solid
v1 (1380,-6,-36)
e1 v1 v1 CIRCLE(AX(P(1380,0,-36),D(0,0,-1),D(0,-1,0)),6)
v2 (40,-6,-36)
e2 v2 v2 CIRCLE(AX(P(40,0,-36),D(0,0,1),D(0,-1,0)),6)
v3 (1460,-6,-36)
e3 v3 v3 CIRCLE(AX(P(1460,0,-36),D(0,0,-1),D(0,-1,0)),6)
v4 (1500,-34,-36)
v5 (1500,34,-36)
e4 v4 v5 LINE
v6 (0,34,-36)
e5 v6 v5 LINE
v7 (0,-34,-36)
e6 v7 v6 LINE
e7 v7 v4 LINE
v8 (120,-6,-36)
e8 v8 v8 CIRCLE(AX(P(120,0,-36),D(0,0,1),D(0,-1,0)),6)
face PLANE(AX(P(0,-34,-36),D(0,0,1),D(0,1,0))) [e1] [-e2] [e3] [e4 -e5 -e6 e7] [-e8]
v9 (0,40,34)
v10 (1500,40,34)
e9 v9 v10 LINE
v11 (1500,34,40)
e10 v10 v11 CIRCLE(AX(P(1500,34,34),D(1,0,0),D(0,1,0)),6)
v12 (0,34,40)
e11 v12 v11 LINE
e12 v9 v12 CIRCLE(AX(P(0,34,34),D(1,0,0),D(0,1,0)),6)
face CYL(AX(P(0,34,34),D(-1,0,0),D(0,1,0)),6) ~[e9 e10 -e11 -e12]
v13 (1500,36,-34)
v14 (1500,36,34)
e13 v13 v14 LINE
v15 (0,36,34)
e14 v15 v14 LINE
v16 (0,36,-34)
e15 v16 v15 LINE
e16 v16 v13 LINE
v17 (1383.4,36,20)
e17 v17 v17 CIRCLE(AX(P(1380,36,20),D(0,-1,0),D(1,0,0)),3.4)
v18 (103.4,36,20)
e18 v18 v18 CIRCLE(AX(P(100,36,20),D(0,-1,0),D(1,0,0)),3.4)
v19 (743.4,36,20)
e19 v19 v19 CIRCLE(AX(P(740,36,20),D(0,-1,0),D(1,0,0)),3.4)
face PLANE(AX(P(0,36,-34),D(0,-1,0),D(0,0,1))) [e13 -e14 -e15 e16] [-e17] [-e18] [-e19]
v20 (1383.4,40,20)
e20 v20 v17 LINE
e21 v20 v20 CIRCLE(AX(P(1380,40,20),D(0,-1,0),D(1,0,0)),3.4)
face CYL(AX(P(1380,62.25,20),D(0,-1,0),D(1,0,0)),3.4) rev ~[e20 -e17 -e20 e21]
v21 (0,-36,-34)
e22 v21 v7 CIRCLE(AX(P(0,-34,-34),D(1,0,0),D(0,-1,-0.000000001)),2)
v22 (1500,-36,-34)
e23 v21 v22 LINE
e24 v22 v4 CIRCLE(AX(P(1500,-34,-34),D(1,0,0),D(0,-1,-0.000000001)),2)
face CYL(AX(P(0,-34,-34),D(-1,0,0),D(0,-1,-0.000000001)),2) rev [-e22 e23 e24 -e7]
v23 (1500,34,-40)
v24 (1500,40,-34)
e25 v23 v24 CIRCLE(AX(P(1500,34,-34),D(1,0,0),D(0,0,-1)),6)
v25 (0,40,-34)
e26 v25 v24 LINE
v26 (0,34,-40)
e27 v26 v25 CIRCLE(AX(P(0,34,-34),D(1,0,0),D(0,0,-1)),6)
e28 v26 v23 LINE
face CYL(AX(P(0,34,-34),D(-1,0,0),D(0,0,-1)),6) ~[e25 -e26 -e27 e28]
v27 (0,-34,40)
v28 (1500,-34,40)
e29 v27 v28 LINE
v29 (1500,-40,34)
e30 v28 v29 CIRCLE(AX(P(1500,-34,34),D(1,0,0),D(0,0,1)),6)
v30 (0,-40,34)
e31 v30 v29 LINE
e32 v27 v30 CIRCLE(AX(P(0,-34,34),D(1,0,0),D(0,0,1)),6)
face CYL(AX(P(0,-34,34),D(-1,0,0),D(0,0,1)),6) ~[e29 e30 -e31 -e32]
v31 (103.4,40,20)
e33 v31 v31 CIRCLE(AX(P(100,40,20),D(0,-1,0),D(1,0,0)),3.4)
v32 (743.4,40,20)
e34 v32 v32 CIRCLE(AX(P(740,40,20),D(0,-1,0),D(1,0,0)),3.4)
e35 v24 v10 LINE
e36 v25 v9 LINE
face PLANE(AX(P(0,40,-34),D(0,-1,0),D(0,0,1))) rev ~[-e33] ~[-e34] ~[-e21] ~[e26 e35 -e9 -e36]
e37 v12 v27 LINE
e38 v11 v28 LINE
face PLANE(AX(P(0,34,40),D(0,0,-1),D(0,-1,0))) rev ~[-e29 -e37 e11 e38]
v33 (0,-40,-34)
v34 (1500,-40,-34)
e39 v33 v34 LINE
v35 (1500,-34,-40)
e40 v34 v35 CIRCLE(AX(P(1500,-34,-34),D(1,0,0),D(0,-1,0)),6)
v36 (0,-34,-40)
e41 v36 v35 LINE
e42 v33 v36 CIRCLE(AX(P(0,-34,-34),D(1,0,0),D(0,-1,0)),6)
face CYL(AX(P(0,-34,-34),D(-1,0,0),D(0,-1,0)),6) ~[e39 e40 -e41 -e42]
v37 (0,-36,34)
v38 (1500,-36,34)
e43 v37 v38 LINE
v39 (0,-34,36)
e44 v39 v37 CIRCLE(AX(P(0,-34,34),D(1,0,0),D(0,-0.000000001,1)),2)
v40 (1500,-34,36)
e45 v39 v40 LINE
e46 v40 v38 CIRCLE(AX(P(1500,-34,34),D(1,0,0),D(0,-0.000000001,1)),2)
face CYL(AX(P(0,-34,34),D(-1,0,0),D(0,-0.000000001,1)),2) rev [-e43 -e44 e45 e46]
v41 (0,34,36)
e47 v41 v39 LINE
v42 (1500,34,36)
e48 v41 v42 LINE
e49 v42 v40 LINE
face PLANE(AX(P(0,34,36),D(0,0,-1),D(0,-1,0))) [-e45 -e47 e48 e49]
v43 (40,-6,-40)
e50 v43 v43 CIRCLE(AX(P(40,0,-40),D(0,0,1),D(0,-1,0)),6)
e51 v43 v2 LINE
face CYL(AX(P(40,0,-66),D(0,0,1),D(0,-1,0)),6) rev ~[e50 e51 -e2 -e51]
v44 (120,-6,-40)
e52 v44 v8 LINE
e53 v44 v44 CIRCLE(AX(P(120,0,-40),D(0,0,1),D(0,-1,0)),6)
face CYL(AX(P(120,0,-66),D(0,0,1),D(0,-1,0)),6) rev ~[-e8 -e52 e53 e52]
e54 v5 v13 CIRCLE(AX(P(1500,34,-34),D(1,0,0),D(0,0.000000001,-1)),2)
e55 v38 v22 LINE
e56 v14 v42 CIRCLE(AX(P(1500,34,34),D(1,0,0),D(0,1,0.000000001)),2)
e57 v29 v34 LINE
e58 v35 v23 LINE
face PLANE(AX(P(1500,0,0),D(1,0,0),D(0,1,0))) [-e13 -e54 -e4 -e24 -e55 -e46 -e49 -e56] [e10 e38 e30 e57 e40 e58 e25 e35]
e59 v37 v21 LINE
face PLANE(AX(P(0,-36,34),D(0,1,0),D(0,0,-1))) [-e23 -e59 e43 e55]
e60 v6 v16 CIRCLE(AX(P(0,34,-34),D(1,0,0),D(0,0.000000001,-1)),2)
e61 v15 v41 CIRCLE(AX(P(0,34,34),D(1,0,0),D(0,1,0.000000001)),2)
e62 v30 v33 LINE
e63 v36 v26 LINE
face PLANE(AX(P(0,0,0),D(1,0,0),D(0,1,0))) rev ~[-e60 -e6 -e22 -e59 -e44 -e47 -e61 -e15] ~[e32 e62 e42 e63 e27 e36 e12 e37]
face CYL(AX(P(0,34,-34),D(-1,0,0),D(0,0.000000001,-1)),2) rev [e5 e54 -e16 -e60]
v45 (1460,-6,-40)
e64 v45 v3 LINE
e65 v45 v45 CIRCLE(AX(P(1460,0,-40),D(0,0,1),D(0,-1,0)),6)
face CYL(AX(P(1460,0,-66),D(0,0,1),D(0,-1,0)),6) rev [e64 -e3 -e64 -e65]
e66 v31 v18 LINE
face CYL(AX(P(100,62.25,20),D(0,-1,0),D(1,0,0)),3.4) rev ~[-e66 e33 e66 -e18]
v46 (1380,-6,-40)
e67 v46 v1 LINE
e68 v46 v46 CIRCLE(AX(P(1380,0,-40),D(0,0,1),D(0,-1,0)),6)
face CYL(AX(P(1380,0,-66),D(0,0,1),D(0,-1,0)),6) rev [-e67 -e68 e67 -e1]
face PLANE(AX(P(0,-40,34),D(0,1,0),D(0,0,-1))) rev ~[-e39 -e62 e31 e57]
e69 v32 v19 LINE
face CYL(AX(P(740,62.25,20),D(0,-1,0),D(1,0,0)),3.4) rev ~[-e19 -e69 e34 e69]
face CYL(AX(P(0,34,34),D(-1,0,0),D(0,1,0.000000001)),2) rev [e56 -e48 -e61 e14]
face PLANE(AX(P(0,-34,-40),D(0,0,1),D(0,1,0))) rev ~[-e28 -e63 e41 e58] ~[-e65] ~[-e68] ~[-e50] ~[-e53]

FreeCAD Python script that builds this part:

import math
import FreeCAD as App
import Part
import Sketcher

V = App.Vector
Q = App.Units.Quantity

doc = App.newDocument("Part")
body = doc.addObject("PartDesign::Body", "Body")

sketch1 = body.newObject("Sketcher::SketchObject", "Sketch")
sketch1.AttachmentSupport = (doc.getObject("YZ_Plane"), [""])
sketch1.MapMode = "FlatFace"
sketch1.addGeometry([
    Part.LineSegment(V(-34, -40, 0), V(34, -40, 0)),
    Part.ArcOfCircle(Part.Circle(V(34, -34, 0), V(0, 0, 1), 6), math.radians(-90), math.radians(0)),
    Part.LineSegment(V(40, -34, 0), V(40, 34, 0)),
    Part.ArcOfCircle(Part.Circle(V(34, 34, 0), V(0, 0, 1), 6), math.radians(0), math.radians(90)),
    Part.LineSegment(V(34, 40, 0), V(-34, 40, 0)),
    Part.ArcOfCircle(Part.Circle(V(-34, 34, 0), V(0, 0, 1), 6), math.radians(90), math.radians(180)),
    Part.LineSegment(V(-40, 34, 0), V(-40, -34, 0)),
    Part.ArcOfCircle(Part.Circle(V(-34, -34, 0), V(0, 0, 1), 6), math.radians(180), math.radians(270)),
    Part.LineSegment(V(34, -36, 0), V(-34, -36, 0)),
    Part.ArcOfCircle(Part.Circle(V(-34, -34, 0), V(0, 0, 1), 2), math.radians(-180), math.radians(-90)),
    Part.LineSegment(V(-36, -34, 0), V(-36, 34, 0)),
    Part.ArcOfCircle(Part.Circle(V(-34, 34, 0), V(0, 0, 1), 2), math.radians(90), math.radians(180)),
    Part.LineSegment(V(-34, 36, 0), V(34, 36, 0)),
    Part.ArcOfCircle(Part.Circle(V(34, 34, 0), V(0, 0, 1), 2), math.radians(0), math.radians(90)),
    Part.LineSegment(V(36, 34, 0), V(36, -34, 0)),
    Part.ArcOfCircle(Part.Circle(V(34, -34, 0), V(0, 0, 1), 2), math.radians(-90), math.radians(0)),
], False)
sketch1.addConstraint([
    Sketcher.Constraint("Tangent", 0, 2, 1, 1),
    Sketcher.Constraint("Tangent", 1, 2, 2, 1),
    Sketcher.Constraint("Tangent", 2, 2, 3, 1),
    Sketcher.Constraint("Tangent", 3, 2, 4, 1),
    Sketcher.Constraint("Tangent", 4, 2, 5, 1),
    Sketcher.Constraint("Tangent", 5, 2, 6, 1),
    Sketcher.Constraint("Tangent", 6, 2, 7, 1),
    Sketcher.Constraint("Tangent", 7, 2, 0, 1),
    Sketcher.Constraint("Tangent", 8, 2, 9, 2),
    Sketcher.Constraint("Tangent", 9, 1, 10, 1),
    Sketcher.Constraint("Tangent", 10, 2, 11, 2),
    Sketcher.Constraint("Tangent", 11, 1, 12, 1),
    Sketcher.Constraint("Tangent", 12, 2, 13, 2),
    Sketcher.Constraint("Tangent", 13, 1, 14, 1),
    Sketcher.Constraint("Tangent", 14, 2, 15, 2),
    Sketcher.Constraint("Tangent", 15, 1, 8, 1),
    Sketcher.Constraint("Horizontal", 0),
    Sketcher.Constraint("Vertical", 2),
    Sketcher.Constraint("Horizontal", 4),
    Sketcher.Constraint("Vertical", 6),
    Sketcher.Constraint("Horizontal", 8),
    Sketcher.Constraint("Vertical", 10),
    Sketcher.Constraint("Horizontal", 12),
    Sketcher.Constraint("Vertical", 14),
    Sketcher.Constraint("Coincident", 9, 3, 7, 3),
    Sketcher.Constraint("Coincident", 11, 3, 5, 3),
    Sketcher.Constraint("Coincident", 13, 3, 3, 3),
    Sketcher.Constraint("Equal", 1, 3),
    Sketcher.Constraint("Equal", 3, 5),
    Sketcher.Constraint("Equal", 5, 7),
    Sketcher.Constraint("Equal", 13, 15),
    Sketcher.Constraint("Symmetric", 1, 3, 5, 3, -1, 1),
    Sketcher.Constraint("Equal", 12, 2),
    Sketcher.Constraint("Radius", 1, 6.0),
    Sketcher.Constraint("Radius", 9, 2.0),
    Sketcher.Constraint("DistanceX", 0, 1, 0, 2, 68.0),
])
pad1 = body.newObject("PartDesign::Pad", "Pad")
pad1.Profile = sketch1
pad1.Length = 1500

sketch2 = body.newObject("Sketcher::SketchObject", "Sketch001")
sketch2.AttachmentSupport = (doc.getObject("YZ_Plane"), [""])
sketch2.MapMode = "FlatFace"
sketch2.AttachmentOffset = App.Placement(V(0, 0, 1380), App.Rotation())
sketch2.addGeometry([
    Part.LineSegment(V(0, -69.605164, 0), V(0, -36, 0)),
    Part.LineSegment(V(0, -36, 0), V(-6, -36, 0)),
    Part.LineSegment(V(-6, -36, 0), V(-6, -66, 0)),
    Part.LineSegment(V(-6, -66, 0), V(0, -69.605164, 0)),
], False)
sketch2.addConstraint([
    Sketcher.Constraint("Coincident", 0, 2, 1, 1),
    Sketcher.Constraint("Coincident", 1, 2, 2, 1),
    Sketcher.Constraint("Coincident", 2, 2, 3, 1),
    Sketcher.Constraint("Coincident", 3, 2, 0, 1),
    Sketcher.Constraint("Vertical", 0),
    Sketcher.Constraint("Horizontal", 1),
    Sketcher.Constraint("Vertical", 2),
    Sketcher.Constraint("PointOnObject", 0, 2, -2),
    Sketcher.Constraint("DistanceX", 1, 2, 1, 1, 6.0),
    Sketcher.Constraint("DistanceY", 2, 2, 2, 1, 30.0),
    Sketcher.Constraint("Angle", 3, Q("-31 deg")),
    Sketcher.Constraint("DistanceY", 0, 2, -1, 1, 36.0),
])
groove = body.newObject("PartDesign::Groove", "Groove")
groove.Profile = sketch2
groove.ReferenceAxis = (sketch2, ["V_Axis"])
groove.Angle = 360
doc.recompute()

linearpattern = body.newObject("PartDesign::LinearPattern", "LinearPattern")
linearpattern.Originals = [groove]
linearpattern.Direction = (doc.getObject("X_Axis"), [""])
linearpattern.Mode = "offset"
linearpattern.Offset = 80
linearpattern.Occurrences = 2
body.Tip = linearpattern
doc.recompute()

datumplane = body.newObject("PartDesign::Plane", "DatumPlane")
datumplane.AttachmentSupport = (doc.getObject("YZ_Plane"), [""])
datumplane.MapMode = "FlatFace"
datumplane.AttachmentOffset = App.Placement(V(0, 0, 750), App.Rotation())
mirrored = body.newObject("PartDesign::Mirrored", "Mirrored")
mirrored.Originals = [groove]
mirrored.MirrorPlane = (datumplane, [""])
body.Tip = mirrored

sketch3 = body.newObject("Sketcher::SketchObject", "Sketch002")
sketch3.AttachmentSupport = (doc.getObject("YZ_Plane"), [""])
sketch3.MapMode = "FlatFace"
sketch3.AttachmentOffset = App.Placement(V(0, 0, 40), App.Rotation())
sketch3.addGeometry([
    Part.LineSegment(V(0, -36, 0), V(0, -69.605164, 0)),
    Part.LineSegment(V(0, -69.605164, 0), V(-6, -66, 0)),
    Part.LineSegment(V(-6, -66, 0), V(-6, -36, 0)),
    Part.LineSegment(V(-6, -36, 0), V(0, -36, 0)),
], False)
sketch3.addConstraint([
    Sketcher.Constraint("Coincident", 0, 2, 1, 1),
    Sketcher.Constraint("Coincident", 1, 2, 2, 1),
    Sketcher.Constraint("Coincident", 2, 2, 3, 1),
    Sketcher.Constraint("Coincident", 3, 2, 0, 1),
    Sketcher.Constraint("Vertical", 0),
    Sketcher.Constraint("Vertical", 2),
    Sketcher.Constraint("Horizontal", 3),
    Sketcher.Constraint("PointOnObject", 0, 2, -2),
    Sketcher.Constraint("DistanceX", 3, 1, 3, 2, 6.0),
    Sketcher.Constraint("DistanceY", 2, 1, 2, 2, 30.0),
    Sketcher.Constraint("Angle", 1, Q("149 deg")),
    Sketcher.Constraint("DistanceY", 1, 2, -1, 1, 66.0),
])
groove2 = body.newObject("PartDesign::Groove", "Groove001")
groove2.Profile = sketch3
groove2.ReferenceAxis = (sketch3, ["V_Axis"])
groove2.Angle = 360

sketch4 = body.newObject("Sketcher::SketchObject", "Sketch003")
sketch4.AttachmentSupport = (doc.getObject("XZ_Plane"), [""])
sketch4.MapMode = "FlatFace"
sketch4.AttachmentOffset = App.Placement(V(0, 0, -40), App.Rotation())
sketch4.addGeometry([
    Part.Circle(V(100, 20, 0), V(0, 0, 1), 3.4),
    Part.Circle(V(740, 20, 0), V(0, 0, 1), 3.4),
    Part.Circle(V(1380, 20, 0), V(0, 0, 1), 3.4),
    Part.Circle(V(1580, 20, 0), V(0, 0, 1), 3.4),
    Part.Circle(V(2220, 20, 0), V(0, 0, 1), 3.4),
    Part.Circle(V(2860, 20, 0), V(0, 0, 1), 3.4),
], False)
sketch4.addConstraint([
    Sketcher.Constraint("Equal", 0, 1),
    Sketcher.Constraint("Equal", 1, 2),
    Sketcher.Constraint("Equal", 2, 3),
    Sketcher.Constraint("Equal", 3, 4),
    Sketcher.Constraint("Equal", 4, 5),
    Sketcher.Constraint("Horizontal", 0, 3, 1, 3),
    Sketcher.Constraint("Horizontal", 1, 3, 2, 3),
    Sketcher.Constraint("Horizontal", 2, 3, 3, 3),
    Sketcher.Constraint("Horizontal", 3, 3, 4, 3),
    Sketcher.Constraint("Horizontal", 4, 3, 5, 3),
    Sketcher.Constraint("Diameter", 0, 6.8),
    Sketcher.Constraint("DistanceX", -1, 1, 0, 3, 100.0),
    Sketcher.Constraint("DistanceY", -1, 1, 0, 3, 20.0),
    Sketcher.Constraint("DistanceX", -1, 1, 1, 3, 740.0),
    Sketcher.Constraint("DistanceX", -1, 1, 2, 3, 1380.0),
    Sketcher.Constraint("DistanceX", -1, 1, 3, 3, 1580.0),
    Sketcher.Constraint("DistanceX", -1, 1, 4, 3, 2220.0),
    Sketcher.Constraint("DistanceX", -1, 1, 5, 3, 2860.0),
])
doc.recompute()
hole = body.newObject("PartDesign::Hole", "Hole")
hole.Profile = sketch4
hole.ThreadType = "None"
hole.Diameter = 6.8
hole.DepthType = "Dimension"
hole.Depth = 22.25
hole.DrillPoint = "Angled"
hole.DrillPointAngle = 118
hole.Reversed = True

doc.recompute()
